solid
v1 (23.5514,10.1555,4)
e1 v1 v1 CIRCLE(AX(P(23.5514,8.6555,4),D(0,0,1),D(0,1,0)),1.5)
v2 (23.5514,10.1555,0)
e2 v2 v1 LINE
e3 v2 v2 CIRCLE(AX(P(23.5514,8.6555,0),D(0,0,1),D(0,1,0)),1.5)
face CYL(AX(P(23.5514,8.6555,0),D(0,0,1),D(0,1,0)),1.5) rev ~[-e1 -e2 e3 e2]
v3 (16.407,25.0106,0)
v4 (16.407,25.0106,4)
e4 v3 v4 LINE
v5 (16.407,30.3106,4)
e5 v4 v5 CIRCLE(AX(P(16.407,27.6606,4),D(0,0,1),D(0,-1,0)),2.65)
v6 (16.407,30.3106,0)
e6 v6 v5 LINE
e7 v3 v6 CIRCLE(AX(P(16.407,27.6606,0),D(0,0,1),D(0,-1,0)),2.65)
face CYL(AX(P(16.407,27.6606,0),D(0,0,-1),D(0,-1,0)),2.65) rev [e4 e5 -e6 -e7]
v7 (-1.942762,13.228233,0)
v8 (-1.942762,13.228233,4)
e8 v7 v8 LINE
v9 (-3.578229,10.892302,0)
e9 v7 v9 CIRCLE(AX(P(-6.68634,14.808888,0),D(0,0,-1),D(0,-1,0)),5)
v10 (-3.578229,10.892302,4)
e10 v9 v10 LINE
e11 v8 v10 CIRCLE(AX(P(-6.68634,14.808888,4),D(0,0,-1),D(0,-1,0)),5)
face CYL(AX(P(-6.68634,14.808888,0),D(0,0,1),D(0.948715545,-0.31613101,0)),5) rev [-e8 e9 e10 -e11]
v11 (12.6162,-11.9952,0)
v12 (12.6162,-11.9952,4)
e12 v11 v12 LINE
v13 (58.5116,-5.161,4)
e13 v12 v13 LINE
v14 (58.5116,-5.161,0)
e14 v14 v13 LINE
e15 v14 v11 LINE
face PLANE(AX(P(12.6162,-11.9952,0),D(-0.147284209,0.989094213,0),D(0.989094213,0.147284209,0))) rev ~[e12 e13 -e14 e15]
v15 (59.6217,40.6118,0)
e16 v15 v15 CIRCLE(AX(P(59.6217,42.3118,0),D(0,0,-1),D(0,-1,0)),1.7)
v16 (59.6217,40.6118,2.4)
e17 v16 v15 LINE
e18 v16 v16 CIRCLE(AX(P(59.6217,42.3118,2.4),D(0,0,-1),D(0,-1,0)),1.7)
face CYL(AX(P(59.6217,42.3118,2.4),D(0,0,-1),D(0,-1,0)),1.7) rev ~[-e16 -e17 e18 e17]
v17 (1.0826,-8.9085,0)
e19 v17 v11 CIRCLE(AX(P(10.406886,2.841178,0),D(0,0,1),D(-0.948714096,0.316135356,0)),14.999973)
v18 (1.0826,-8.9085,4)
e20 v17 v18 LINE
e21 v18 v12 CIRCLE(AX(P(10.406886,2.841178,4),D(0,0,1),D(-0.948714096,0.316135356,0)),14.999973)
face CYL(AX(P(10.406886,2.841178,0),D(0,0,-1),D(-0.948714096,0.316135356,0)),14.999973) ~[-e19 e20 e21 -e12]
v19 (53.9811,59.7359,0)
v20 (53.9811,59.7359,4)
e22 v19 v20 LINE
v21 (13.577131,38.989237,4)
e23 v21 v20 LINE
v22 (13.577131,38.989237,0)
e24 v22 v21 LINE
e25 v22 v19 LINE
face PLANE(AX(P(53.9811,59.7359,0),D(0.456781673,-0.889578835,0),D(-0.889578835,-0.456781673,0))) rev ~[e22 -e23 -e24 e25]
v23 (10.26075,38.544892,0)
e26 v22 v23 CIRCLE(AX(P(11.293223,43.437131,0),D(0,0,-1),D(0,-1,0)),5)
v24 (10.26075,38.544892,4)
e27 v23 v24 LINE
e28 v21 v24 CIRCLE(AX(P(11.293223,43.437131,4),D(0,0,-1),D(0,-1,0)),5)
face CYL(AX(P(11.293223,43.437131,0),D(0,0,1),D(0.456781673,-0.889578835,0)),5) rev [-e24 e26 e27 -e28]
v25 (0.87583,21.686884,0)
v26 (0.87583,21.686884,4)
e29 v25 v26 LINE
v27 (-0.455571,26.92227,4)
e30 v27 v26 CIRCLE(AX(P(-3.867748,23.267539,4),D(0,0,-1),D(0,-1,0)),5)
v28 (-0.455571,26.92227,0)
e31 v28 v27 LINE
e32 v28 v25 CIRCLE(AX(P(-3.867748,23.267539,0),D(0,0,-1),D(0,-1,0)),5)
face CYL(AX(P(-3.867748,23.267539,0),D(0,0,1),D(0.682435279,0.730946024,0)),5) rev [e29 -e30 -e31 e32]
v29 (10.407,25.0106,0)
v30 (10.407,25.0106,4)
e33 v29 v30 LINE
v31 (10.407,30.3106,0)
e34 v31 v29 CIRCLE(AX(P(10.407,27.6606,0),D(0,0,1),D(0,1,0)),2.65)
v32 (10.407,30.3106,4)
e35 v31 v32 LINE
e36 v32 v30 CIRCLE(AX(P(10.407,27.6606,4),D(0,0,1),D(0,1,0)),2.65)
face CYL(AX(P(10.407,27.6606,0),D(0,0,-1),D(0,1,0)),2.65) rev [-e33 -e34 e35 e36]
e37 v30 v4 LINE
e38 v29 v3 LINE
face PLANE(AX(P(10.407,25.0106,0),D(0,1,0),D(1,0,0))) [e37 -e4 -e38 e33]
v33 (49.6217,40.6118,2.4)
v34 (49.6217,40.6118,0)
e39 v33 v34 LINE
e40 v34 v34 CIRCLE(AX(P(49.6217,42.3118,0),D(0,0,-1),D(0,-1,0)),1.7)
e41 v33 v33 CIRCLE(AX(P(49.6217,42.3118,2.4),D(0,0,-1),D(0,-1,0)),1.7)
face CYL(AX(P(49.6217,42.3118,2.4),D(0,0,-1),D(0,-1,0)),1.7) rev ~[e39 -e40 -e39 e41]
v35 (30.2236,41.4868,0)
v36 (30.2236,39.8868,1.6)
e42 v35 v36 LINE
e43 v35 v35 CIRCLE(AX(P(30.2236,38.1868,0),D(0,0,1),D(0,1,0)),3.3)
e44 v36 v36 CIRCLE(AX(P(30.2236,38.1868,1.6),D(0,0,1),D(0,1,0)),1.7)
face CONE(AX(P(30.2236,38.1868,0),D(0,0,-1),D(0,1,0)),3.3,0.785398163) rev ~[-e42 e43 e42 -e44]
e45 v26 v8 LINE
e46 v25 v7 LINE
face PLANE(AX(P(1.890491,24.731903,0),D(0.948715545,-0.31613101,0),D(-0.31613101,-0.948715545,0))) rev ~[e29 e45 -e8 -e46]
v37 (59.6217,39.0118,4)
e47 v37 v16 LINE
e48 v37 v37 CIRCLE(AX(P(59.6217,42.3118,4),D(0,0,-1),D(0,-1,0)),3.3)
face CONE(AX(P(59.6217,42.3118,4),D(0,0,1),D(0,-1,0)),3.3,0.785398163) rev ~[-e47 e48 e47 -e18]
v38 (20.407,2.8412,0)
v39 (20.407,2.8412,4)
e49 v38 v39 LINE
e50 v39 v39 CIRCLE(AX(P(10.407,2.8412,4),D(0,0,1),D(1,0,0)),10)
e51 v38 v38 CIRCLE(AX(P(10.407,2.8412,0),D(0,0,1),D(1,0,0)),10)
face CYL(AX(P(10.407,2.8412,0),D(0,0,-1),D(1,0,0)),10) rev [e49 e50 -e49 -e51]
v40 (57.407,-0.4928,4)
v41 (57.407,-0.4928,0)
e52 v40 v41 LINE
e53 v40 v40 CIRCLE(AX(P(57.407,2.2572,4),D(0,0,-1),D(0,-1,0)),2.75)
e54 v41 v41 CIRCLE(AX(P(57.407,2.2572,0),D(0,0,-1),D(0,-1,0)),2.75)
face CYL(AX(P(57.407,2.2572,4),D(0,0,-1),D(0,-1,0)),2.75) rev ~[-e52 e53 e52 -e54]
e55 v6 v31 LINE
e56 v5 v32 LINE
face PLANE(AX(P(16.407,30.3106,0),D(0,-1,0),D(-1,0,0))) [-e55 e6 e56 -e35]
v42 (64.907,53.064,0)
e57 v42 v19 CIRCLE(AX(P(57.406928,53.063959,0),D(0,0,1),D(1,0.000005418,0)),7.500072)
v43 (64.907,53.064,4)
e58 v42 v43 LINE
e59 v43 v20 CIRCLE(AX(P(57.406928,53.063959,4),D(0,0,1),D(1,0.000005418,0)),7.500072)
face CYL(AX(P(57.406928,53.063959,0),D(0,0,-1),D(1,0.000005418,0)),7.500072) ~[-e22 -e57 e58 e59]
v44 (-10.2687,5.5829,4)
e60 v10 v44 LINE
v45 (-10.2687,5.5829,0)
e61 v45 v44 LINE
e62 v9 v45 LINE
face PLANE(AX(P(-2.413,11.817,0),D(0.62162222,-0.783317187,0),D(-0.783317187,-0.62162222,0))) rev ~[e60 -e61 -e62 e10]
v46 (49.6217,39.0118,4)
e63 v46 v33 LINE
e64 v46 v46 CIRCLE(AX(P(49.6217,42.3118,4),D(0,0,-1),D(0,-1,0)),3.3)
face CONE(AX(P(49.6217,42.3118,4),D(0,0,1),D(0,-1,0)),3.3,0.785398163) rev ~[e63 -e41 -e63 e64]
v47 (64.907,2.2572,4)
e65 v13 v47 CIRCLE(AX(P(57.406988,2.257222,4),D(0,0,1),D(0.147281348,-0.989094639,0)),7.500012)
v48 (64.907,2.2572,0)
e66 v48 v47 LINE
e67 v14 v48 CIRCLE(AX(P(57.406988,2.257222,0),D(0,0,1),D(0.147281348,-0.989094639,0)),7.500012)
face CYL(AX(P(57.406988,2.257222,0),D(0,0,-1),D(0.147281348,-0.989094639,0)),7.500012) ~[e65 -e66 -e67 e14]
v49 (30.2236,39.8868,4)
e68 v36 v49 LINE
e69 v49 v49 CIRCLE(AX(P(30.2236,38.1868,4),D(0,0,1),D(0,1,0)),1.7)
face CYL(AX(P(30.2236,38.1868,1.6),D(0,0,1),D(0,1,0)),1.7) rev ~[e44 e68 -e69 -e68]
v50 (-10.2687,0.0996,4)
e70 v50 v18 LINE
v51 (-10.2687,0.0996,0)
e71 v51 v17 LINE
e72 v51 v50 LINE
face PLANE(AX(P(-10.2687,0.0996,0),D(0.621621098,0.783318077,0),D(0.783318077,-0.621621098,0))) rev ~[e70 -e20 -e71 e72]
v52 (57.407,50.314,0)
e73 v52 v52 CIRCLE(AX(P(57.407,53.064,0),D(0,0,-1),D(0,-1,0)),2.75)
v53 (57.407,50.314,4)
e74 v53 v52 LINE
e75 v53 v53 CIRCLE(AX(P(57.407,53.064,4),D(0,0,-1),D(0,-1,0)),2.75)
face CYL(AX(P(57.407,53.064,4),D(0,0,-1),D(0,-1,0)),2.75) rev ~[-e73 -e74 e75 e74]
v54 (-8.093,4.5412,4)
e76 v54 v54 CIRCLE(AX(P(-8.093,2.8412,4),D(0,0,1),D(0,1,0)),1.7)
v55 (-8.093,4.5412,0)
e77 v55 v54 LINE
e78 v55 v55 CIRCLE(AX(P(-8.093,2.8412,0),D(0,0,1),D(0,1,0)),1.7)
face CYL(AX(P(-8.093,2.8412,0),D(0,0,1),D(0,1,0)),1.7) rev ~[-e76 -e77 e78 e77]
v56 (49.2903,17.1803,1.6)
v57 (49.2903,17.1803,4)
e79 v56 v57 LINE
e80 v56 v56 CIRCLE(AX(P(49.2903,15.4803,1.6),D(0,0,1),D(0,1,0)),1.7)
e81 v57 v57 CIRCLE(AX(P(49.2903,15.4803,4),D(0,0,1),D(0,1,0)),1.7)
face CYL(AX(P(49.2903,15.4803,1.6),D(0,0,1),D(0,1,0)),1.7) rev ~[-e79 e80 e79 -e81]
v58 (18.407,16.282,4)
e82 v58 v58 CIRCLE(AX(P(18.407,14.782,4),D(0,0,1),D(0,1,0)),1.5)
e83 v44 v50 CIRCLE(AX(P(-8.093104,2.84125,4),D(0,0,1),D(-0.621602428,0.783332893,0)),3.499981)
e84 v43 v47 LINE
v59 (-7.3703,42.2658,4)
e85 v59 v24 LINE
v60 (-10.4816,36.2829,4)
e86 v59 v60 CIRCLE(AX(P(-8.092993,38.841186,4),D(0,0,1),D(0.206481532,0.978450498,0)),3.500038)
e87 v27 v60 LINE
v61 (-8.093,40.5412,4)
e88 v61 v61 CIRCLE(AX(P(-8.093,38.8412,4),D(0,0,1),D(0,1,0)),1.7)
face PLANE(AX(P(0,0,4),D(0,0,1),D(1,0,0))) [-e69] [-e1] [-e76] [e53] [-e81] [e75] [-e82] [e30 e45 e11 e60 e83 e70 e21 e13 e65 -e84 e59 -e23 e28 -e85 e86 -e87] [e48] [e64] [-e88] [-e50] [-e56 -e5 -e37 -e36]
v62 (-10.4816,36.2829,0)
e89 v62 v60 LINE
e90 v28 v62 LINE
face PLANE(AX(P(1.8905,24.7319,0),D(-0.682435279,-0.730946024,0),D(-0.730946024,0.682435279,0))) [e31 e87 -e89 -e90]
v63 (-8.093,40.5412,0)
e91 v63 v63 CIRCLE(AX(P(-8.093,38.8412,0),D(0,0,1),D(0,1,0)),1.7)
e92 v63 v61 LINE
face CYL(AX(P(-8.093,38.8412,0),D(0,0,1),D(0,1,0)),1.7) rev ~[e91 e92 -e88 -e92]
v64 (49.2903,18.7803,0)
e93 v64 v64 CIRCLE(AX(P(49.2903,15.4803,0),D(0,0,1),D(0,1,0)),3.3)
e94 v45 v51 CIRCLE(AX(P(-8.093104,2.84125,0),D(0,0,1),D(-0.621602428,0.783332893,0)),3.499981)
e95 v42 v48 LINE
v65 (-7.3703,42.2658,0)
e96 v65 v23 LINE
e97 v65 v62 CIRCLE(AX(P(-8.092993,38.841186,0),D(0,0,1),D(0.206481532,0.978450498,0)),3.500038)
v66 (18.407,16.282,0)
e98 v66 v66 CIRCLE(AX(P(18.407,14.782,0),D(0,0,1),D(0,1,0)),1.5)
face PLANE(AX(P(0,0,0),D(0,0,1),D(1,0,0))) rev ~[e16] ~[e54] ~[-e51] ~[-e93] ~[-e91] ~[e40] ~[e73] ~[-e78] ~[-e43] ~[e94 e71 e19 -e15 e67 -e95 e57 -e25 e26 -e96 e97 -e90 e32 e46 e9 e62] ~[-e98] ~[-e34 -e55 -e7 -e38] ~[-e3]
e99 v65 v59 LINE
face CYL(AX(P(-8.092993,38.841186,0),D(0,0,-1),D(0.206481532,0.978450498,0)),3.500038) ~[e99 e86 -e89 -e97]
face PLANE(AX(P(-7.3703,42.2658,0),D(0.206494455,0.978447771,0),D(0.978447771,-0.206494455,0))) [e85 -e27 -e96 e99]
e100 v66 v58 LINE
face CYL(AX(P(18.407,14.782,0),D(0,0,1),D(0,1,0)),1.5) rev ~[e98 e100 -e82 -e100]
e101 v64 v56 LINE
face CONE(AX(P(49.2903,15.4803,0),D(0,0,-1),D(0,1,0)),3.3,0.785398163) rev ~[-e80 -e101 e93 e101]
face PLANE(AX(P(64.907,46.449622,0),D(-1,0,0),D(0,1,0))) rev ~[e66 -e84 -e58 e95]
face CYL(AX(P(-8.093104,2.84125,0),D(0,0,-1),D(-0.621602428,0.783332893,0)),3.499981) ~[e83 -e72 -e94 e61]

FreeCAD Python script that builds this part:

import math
import FreeCAD as App
import Part
import Sketcher
from FreeCAD import Vector
Q = App.Units.Quantity


def edges_at(feature, points):
    """Names of the edges that pass closest to the given points."""
    edges = feature.Shape.Edges
    near = lambda p: min(range(len(edges)), key=lambda i: edges[i].distToShape(Part.Vertex(*p))[0])
    return sorted({f"Edge{near(p) + 1}" for p in points})

doc = App.newDocument("Part")
body = doc.addObject("PartDesign::Body", "Body")

sketch1 = doc.addObject("Sketcher::SketchObject", "Sketch")
body.addObject(sketch1)
sketch1.AttachmentSupport = (doc.XY_Plane, [""])
sketch1.MapMode = "FlatFace"
sketch1.addGeometry([
    Part.LineSegment(Vector(53.9811, 59.7359, 0), Vector(11.9978, 38.1783, 0)),
    Part.LineSegment(Vector(11.9978, 38.1783, 0), Vector(-7.3703, 42.2658, 0)),
    Part.ArcOfCircle(Part.Circle(Vector(-8.093, 38.8412, 0), Vector(0, 0, 1), 3.500026), math.radians(78.083604), math.radians(226.964722)),
    Part.LineSegment(Vector(-10.4816, 36.2829, 0), Vector(1.8905, 24.7319, 0)),
    Part.LineSegment(Vector(1.890491, 24.731903, 0), Vector(-2.413012, 11.817004, 0)),
    Part.LineSegment(Vector(-2.413, 11.817, 0), Vector(-10.2687, 5.5829, 0)),
    Part.ArcOfCircle(Part.Circle(Vector(-8.093, 2.8412, 0), Vector(0, 0, 1), 3.5), math.radians(128.434065), math.radians(231.564917)),
    Part.LineSegment(Vector(-10.2687, 0.0996, 0), Vector(1.0826, -8.9085, 0)),
    Part.ArcOfCircle(Part.Circle(Vector(10.407, 2.8412, 0), Vector(0, 0, 1), 15.000074), math.radians(-128.435031), math.radians(-81.530656)),
    Part.LineSegment(Vector(12.6162, -11.9952, 0), Vector(58.5116, -5.161, 0)),
    Part.ArcOfCircle(Part.Circle(Vector(57.407, 2.2572, 0), Vector(0, 0, 1), 7.499989), math.radians(-81.530656), math.radians(0)),
    Part.LineSegment(Vector(64.907, 2.2572, 0), Vector(64.907, 53.064, 0)),
    Part.ArcOfCircle(Part.Circle(Vector(57.407, 53.064, 0), Vector(0, 0, 1), 7.5), math.radians(0), math.radians(117.179678)),
    Part.Circle(Vector(10.407, 2.8412, 0), Vector(0, 0, 1), 10),
    Part.LineSegment(Vector(10.407, 30.3106, 0), Vector(16.407, 30.3106, 0)),
    Part.ArcOfCircle(Part.Circle(Vector(16.407, 27.6606, 0), Vector(0, 0, 1), 2.65), math.radians(-90), math.radians(90)),
    Part.LineSegment(Vector(16.407, 25.0106, 0), Vector(10.407, 25.0106, 0)),
    Part.ArcOfCircle(Part.Circle(Vector(10.407, 27.6606, 0), Vector(0, 0, 1), 2.65), math.radians(90), math.radians(270)),
], False)
sketch1.addConstraint([
    Sketcher.Constraint("Coincident", 0, 2, 1, 1),
    Sketcher.Constraint("Tangent", 1, 2, 2, 1),
    Sketcher.Constraint("Tangent", 2, 2, 3, 1),
    Sketcher.Constraint("Coincident", 3, 2, 4, 1),
    Sketcher.Constraint("Coincident", 4, 2, 5, 1),
    Sketcher.Constraint("Tangent", 5, 2, 6, 1),
    Sketcher.Constraint("Tangent", 6, 2, 7, 1),
    Sketcher.Constraint("Tangent", 7, 2, 8, 1),
    Sketcher.Constraint("Tangent", 8, 2, 9, 1),
    Sketcher.Constraint("Tangent", 9, 2, 10, 1),
    Sketcher.Constraint("Tangent", 10, 2, 11, 1),
    Sketcher.Constraint("Tangent", 11, 2, 12, 1),
    Sketcher.Constraint("Tangent", 12, 2, 0, 1),
    Sketcher.Constraint("Tangent", 14, 2, 15, 2),
    Sketcher.Constraint("Tangent", 15, 1, 16, 1),
    Sketcher.Constraint("Tangent", 16, 2, 17, 2),
    Sketcher.Constraint("Tangent", 17, 1, 14, 1),
    Sketcher.Constraint("Vertical", 11),
    Sketcher.Constraint("Horizontal", 14),
    Sketcher.Constraint("Horizontal", 16),
    Sketcher.Constraint("Coincident", 13, 3, 8, 3),
    Sketcher.Constraint("Equal", 2, 6),
    Sketcher.Constraint("Equal", 10, 12),
    Sketcher.Constraint("Horizontal", 6, 3, 8, 3),
    Sketcher.Constraint("Vertical", 2, 3, 6, 3),
    Sketcher.Constraint("Vertical", 13, 3, 17, 3),
    Sketcher.Constraint("Vertical", 5, 2, 6, 2),
    Sketcher.Constraint("Diameter", 13, Q("20 mm")),
    Sketcher.Constraint("Radius", 8, Q("15 mm")),
    Sketcher.Constraint("Radius", 2, Q("3.5 mm")),
    Sketcher.Constraint("Radius", 10, Q("7.5 mm")),
    Sketcher.Constraint("Radius", 15, Q("2.65 mm")),
    Sketcher.Constraint("DistanceY", 6, 3, 2, 3, Q("36 mm")),
    Sketcher.Constraint("DistanceX", 14, 1, 14, 2, Q("6 mm")),
    Sketcher.Constraint("DistanceX", 8, 3, 10, 3, Q("47 mm")),
    Sketcher.Constraint("Angle", 0, Q("-152.8204 deg")),
    Sketcher.Constraint("Angle", 4, Q("-108.429 deg")),
    Sketcher.Constraint("Angle", 9, Q("8.4696 deg")),
    Sketcher.Constraint("DistanceX", 6, 3, 8, 3, Q("18.5 mm")),
    Sketcher.Constraint("DistanceX", 6, 3, 4, 2, Q("5.68 mm")),
    Sketcher.Constraint("Distance", 4, Q("13.613 mm")),
    Sketcher.Constraint("DistanceY", 11, 1, 11, 2, Q("50.8068 mm")),
    Sketcher.Constraint("DistanceX", 2, 3, -1, 1, Q("8.093 mm")),
    Sketcher.Constraint("DistanceY", -1, 1, 12, 3, Q("53.064 mm")),
    Sketcher.Constraint("DistanceY", 0, 2, 2, 3, Q("0.663 mm")),
    Sketcher.Constraint("DistanceY", -1, 1, 15, 3, Q("27.6606 mm")),
])
pad1 = doc.addObject("PartDesign::Pad", "Pad")
body.addObject(pad1)
pad1.Profile = sketch1
pad1.Length = 4

sketch2 = doc.addObject("Sketcher::SketchObject", "Sketch001")
body.addObject(sketch2)
sketch2.AttachmentSupport = (doc.XY_Plane, [""])
sketch2.MapMode = "FlatFace"
sketch2.AttachmentOffset = App.Placement(Vector(0, 0, 4), App.Rotation())
sketch2.addGeometry([
    Part.Circle(Vector(57.407, 53.064, 0), Vector(0, 0, 1), 2.75),
    Part.Circle(Vector(57.407, 2.2572, 0), Vector(0, 0, 1), 2.75),
], False)
sketch2.addConstraint([
    Sketcher.Constraint("Equal", 0, 1),
    Sketcher.Constraint("Vertical", 0, 3, 1, 3),
    Sketcher.Constraint("Diameter", 0, Q("5.5 mm")),
    Sketcher.Constraint("DistanceX", -1, 1, 0, 3, Q("57.407 mm")),
    Sketcher.Constraint("DistanceY", -1, 1, 0, 3, Q("53.064 mm")),
    Sketcher.Constraint("DistanceY", -1, 1, 1, 3, Q("2.2572 mm")),
])
doc.recompute()
hole = doc.addObject("PartDesign::Hole", "Hole")
body.addObject(hole)
hole.Profile = sketch2
hole.ThreadType = "None"
hole.Diameter = 5.5
hole.DepthType = "ThroughAll"

sketch3 = doc.addObject("Sketcher::SketchObject", "Sketch002")
body.addObject(sketch3)
sketch3.AttachmentSupport = (doc.XY_Plane, [""])
sketch3.MapMode = "FlatFace"
sketch3.addGeometry([
    Part.Circle(Vector(18.407, 14.782, 0), Vector(0, 0, 1), 1.5),
    Part.Circle(Vector(23.5514, 8.6555, 0), Vector(0, 0, 1), 1.5),
], False)
sketch3.addConstraint([
    Sketcher.Constraint("Equal", 0, 1),
    Sketcher.Constraint("Diameter", 0, Q("3 mm")),
    Sketcher.Constraint("DistanceX", -1, 1, 0, 3, Q("18.407 mm")),
    Sketcher.Constraint("DistanceY", -1, 1, 0, 3, Q("14.782 mm")),
    Sketcher.Constraint("DistanceX", -1, 1, 1, 3, Q("23.5514 mm")),
    Sketcher.Constraint("DistanceY", -1, 1, 1, 3, Q("8.6555 mm")),
])
doc.recompute()
hole2 = doc.addObject("PartDesign::Hole", "Hole001")
body.addObject(hole2)
hole2.Profile = sketch3
hole2.ThreadType = "None"
hole2.Diameter = 3
hole2.DepthType = "ThroughAll"
hole2.Reversed = True

sketch4 = doc.addObject("Sketcher::SketchObject", "Sketch003")
body.addObject(sketch4)
sketch4.AttachmentSupport = (doc.XY_Plane, [""])
sketch4.MapMode = "FlatFace"
sketch4.addGeometry([
    Part.Circle(Vector(49.2903, 15.4803, 0), Vector(0, 0, 1), 1.7),
    Part.Circle(Vector(30.2236, 38.1868, 0), Vector(0, 0, 1), 1.7),
], False)
sketch4.addConstraint([
    Sketcher.Constraint("Equal", 0, 1),
    Sketcher.Constraint("Diameter", 0, Q("3.4 mm")),
    Sketcher.Constraint("DistanceX", -1, 1, 0, 3, Q("49.2903 mm")),
    Sketcher.Constraint("DistanceY", -1, 1, 0, 3, Q("15.4803 mm")),
    Sketcher.Constraint("DistanceX", -1, 1, 1, 3, Q("30.2236 mm")),
    Sketcher.Constraint("DistanceY", -1, 1, 1, 3, Q("38.1868 mm")),
])
doc.recompute()
hole3 = doc.addObject("PartDesign::Hole", "Hole002")
body.addObject(hole3)
hole3.Profile = sketch4
hole3.ThreadType = "None"
hole3.Diameter = 3.4
hole3.DepthType = "ThroughAll"
hole3.HoleCutType = "Countersink"
hole3.HoleCutDiameter = 6.6
hole3.HoleCutCountersinkAngle = 90
hole3.Reversed = True

sketch5 = doc.addObject("Sketcher::SketchObject", "Sketch004")
body.addObject(sketch5)
sketch5.AttachmentSupport = (doc.XY_Plane, [""])
sketch5.MapMode = "FlatFace"
sketch5.AttachmentOffset = App.Placement(Vector(0, 0, 4), App.Rotation())
sketch5.addGeometry([
    Part.Circle(Vector(59.6217, 42.3118, 0), Vector(0, 0, 1), 1.7),
    Part.Circle(Vector(49.6217, 42.3118, 0), Vector(0, 0, 1), 1.7),
], False)
sketch5.addConstraint([
    Sketcher.Constraint("Equal", 0, 1),
    Sketcher.Constraint("Horizontal", 0, 3, 1, 3),
    Sketcher.Constraint("Diameter", 0, Q("3.4 mm")),
    Sketcher.Constraint("DistanceX", 1, 3, 0, 3, Q("10 mm")),
    Sketcher.Constraint("DistanceX", -1, 1, 0, 3, Q("59.6217 mm")),
    Sketcher.Constraint("DistanceY", -1, 1, 0, 3, Q("42.3118 mm")),
])
doc.recompute()
hole4 = doc.addObject("PartDesign::Hole", "Hole003")
body.addObject(hole4)
hole4.Profile = sketch5
hole4.ThreadType = "None"
hole4.Diameter = 3.4
hole4.DepthType = "ThroughAll"
hole4.HoleCutType = "Countersink"
hole4.HoleCutDiameter = 6.6
hole4.HoleCutCountersinkAngle = 90

sketch6 = doc.addObject("Sketcher::SketchObject", "Sketch005")
body.addObject(sketch6)
sketch6.AttachmentSupport = (doc.XY_Plane, [""])
sketch6.MapMode = "FlatFace"
sketch6.addGeometry([
    Part.Circle(Vector(-8.093, 2.8412, 0), Vector(0, 0, 1), 1.7),
    Part.Circle(Vector(-8.093, 38.8412, 0), Vector(0, 0, 1), 1.7),
], False)
sketch6.addConstraint([
    Sketcher.Constraint("Equal", 0, 1),
    Sketcher.Constraint("Vertical", 0, 3, 1, 3),
    Sketcher.Constraint("Diameter", 0, Q("3.4 mm")),
    Sketcher.Constraint("DistanceY", 0, 3, 1, 3, Q("36 mm")),
    Sketcher.Constraint("DistanceX", 0, 3, -1, 1, Q("8.093 mm")),
    Sketcher.Constraint("DistanceY", -1, 1, 0, 3, Q("2.8412 mm")),
])
doc.recompute()
hole5 = doc.addObject("PartDesign::Hole", "Hole004")
body.addObject(hole5)
hole5.Profile = sketch6
hole5.ThreadType = "None"
hole5.Diameter = 3.4
hole5.DepthType = "ThroughAll"
hole5.Reversed = True
doc.recompute()

fillet = doc.addObject("PartDesign::Fillet", "Fillet")
body.addObject(fillet)
fillet.Base = (hole5, edges_at(hole5, [(-2.413, 11.817, 2), (1.891, 24.732, 2), (11.998, 38.178, 2)]))
fillet.Radius = 5

doc.recompute()
